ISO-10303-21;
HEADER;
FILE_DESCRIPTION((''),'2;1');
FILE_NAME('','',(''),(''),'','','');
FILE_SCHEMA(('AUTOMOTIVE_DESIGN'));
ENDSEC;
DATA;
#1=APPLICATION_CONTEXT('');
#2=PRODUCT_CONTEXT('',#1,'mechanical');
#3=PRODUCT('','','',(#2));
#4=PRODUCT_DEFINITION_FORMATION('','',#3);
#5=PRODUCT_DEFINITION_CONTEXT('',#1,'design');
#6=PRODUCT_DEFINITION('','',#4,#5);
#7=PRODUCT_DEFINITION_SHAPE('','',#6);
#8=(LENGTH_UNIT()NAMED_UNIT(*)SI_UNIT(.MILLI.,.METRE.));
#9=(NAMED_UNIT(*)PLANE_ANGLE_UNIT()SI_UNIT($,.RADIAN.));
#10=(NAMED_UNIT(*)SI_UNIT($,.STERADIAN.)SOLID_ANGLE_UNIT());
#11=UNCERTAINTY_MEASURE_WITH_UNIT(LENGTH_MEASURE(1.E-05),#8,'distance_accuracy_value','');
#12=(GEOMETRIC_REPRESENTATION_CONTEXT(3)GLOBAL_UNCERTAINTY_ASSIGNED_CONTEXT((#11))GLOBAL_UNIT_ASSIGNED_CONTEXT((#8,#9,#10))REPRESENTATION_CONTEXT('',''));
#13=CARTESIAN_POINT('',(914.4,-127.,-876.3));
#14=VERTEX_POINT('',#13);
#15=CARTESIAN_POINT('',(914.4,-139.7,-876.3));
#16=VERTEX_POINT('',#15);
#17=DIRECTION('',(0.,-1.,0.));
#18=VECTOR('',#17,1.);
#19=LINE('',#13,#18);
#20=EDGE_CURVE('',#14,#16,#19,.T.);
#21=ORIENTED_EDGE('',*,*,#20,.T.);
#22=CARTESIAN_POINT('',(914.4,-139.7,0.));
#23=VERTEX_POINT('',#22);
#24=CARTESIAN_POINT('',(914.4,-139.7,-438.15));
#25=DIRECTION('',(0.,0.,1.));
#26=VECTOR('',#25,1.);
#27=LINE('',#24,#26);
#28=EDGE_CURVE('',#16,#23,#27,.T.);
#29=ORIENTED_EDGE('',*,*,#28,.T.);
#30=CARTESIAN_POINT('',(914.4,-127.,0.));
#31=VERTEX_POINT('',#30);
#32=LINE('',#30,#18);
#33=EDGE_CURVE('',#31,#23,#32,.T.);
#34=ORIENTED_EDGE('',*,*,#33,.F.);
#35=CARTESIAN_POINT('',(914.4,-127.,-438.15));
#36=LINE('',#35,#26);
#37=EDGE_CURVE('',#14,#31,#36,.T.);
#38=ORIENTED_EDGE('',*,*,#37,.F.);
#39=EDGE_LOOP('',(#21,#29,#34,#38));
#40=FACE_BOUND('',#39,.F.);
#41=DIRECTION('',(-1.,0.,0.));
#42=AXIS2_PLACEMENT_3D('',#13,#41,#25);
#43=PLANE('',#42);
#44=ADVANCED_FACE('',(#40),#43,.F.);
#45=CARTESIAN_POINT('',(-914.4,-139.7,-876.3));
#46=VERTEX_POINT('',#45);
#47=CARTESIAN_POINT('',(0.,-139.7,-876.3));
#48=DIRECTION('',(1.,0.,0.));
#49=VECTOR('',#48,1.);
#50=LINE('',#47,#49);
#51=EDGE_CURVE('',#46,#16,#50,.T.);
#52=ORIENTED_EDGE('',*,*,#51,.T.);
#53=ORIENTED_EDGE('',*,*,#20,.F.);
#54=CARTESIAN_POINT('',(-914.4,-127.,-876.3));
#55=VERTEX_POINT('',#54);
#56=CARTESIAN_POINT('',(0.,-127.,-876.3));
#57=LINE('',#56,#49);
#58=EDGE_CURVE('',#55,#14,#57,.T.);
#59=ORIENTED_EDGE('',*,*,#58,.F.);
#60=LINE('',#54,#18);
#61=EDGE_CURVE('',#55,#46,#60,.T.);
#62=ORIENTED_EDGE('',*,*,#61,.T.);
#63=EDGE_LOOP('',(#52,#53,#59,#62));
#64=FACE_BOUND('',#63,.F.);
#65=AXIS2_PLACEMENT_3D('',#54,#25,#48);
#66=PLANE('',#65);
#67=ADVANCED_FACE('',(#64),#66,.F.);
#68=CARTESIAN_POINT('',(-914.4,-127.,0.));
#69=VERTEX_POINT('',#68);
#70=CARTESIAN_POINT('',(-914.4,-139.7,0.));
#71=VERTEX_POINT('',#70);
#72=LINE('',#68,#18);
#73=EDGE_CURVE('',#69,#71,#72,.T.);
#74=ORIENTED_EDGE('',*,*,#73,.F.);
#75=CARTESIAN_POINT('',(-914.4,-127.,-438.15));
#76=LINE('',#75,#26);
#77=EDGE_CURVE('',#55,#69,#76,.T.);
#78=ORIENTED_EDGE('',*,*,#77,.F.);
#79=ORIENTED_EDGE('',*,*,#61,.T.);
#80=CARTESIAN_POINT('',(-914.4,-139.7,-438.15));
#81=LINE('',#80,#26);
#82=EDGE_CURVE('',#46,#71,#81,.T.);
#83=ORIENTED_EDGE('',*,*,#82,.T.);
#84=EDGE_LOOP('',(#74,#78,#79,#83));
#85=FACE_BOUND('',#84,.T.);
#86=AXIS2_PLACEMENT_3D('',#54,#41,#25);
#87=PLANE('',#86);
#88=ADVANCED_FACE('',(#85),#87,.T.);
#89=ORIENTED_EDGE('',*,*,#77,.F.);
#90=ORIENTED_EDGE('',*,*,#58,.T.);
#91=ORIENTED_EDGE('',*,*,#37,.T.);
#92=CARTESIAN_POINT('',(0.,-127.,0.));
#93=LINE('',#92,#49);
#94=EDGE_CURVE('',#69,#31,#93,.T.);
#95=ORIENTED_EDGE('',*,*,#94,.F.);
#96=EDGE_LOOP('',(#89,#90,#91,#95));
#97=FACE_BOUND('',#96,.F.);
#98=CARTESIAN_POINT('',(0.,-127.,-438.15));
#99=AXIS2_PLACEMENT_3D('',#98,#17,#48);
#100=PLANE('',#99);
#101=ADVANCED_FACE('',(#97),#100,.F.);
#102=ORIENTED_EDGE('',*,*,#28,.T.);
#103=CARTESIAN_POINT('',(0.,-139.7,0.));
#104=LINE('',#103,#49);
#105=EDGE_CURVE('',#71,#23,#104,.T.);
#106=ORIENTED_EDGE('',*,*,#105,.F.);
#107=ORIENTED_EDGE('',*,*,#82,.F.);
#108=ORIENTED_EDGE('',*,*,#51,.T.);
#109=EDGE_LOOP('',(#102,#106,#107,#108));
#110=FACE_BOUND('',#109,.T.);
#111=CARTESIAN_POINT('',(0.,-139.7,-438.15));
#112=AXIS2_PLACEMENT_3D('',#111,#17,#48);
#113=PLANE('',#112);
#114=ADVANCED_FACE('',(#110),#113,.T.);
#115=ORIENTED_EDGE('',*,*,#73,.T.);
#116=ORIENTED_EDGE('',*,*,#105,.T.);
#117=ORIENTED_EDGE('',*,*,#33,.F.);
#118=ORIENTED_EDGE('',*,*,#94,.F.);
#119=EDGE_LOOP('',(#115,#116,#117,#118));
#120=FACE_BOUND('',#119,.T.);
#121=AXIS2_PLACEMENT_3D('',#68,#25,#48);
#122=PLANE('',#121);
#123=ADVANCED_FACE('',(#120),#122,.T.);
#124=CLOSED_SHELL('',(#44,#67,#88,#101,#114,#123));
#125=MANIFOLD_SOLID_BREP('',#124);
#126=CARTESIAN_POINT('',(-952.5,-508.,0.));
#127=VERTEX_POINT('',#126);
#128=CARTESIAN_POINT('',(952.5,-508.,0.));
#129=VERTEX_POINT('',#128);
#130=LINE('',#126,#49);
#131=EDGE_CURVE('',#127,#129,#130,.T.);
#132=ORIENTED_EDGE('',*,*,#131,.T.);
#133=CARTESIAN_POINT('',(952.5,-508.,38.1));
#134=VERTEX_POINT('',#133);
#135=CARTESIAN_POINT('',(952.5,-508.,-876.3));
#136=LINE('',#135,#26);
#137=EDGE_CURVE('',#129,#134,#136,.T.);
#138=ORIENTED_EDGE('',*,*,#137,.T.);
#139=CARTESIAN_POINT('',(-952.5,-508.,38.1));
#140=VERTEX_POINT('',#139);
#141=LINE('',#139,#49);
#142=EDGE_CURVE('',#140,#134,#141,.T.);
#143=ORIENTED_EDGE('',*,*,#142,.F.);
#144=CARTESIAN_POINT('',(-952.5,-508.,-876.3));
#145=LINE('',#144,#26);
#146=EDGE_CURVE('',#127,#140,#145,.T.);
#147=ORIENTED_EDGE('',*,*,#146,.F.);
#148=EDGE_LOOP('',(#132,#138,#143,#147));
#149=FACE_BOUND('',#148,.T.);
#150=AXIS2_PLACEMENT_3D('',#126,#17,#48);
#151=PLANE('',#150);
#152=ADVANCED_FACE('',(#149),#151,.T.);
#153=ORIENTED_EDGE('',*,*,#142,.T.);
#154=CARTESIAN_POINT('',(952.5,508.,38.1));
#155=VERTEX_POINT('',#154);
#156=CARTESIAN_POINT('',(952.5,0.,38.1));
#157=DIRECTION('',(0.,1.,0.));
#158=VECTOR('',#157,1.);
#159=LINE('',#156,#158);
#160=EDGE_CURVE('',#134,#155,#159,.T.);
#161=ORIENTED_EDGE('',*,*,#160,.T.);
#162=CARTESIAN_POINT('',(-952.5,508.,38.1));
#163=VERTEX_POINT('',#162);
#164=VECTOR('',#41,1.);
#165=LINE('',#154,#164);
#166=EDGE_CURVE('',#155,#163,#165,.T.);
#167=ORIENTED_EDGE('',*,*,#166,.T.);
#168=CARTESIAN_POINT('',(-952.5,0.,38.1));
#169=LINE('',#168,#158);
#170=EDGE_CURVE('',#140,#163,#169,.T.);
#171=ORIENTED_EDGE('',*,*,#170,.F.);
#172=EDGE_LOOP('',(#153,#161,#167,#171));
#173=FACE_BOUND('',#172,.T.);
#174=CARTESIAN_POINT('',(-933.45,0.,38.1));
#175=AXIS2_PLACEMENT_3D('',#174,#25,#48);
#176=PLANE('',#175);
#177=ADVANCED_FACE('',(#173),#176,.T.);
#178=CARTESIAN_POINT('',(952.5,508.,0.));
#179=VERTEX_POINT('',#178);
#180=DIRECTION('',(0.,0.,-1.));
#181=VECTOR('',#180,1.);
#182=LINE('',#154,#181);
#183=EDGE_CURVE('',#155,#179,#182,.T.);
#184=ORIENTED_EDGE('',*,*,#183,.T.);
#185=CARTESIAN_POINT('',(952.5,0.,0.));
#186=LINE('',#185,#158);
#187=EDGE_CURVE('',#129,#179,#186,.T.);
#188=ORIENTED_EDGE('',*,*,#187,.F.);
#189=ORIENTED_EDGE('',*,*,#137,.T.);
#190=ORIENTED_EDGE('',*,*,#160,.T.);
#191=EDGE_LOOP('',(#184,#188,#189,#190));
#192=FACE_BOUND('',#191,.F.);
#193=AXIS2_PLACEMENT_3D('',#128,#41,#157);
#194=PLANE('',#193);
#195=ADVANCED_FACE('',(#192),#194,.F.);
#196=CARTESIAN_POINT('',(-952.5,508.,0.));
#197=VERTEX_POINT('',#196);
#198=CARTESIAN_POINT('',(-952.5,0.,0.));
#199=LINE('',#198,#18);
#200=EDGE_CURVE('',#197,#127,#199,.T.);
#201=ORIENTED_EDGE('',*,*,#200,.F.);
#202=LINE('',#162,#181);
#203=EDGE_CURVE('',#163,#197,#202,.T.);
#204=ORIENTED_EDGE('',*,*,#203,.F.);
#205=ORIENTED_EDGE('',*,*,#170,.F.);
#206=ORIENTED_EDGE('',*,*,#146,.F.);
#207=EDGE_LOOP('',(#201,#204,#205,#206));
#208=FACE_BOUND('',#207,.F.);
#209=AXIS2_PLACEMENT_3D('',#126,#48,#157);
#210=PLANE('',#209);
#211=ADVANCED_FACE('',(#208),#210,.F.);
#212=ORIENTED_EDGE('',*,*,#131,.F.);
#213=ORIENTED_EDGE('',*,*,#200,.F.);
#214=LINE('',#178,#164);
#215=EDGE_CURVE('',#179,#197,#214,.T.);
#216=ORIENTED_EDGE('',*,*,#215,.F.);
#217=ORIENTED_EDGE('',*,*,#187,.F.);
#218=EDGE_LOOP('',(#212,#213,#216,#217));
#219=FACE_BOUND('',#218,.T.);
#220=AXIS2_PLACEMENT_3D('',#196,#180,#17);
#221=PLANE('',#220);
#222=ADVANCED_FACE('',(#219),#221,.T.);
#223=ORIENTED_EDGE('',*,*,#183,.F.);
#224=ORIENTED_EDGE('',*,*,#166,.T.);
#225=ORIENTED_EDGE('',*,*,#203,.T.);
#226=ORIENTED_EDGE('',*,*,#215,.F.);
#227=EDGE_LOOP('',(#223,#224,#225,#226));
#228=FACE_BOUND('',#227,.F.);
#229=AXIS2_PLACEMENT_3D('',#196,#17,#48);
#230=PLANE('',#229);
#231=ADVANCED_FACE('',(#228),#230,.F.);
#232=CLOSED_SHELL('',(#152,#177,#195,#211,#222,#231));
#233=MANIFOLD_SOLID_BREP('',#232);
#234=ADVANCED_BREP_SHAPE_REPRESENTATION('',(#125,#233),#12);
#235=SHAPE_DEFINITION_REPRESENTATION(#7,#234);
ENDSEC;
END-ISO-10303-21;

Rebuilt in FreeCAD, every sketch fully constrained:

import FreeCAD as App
import Part
import Sketcher
from FreeCAD import Vector
Q = App.Units.Quantity


def add_polygon(sketch, points):
    """Adds a closed chain of lines whose ends are joined by coincident constraints."""
    first, n = sketch.GeometryCount, len(points)
    for a, b in zip(points, points[1:] + points[:1]):
        sketch.addGeometry(Part.LineSegment(App.Vector(*a, 0), App.Vector(*b, 0)), False)
    for i in range(n):
        sketch.addConstraint(Sketcher.Constraint("Coincident", first + i, 2, first + (i + 1) % n, 1))

doc = App.newDocument("Part")
body = doc.addObject("PartDesign::Body", "Body")

# Sketch on XY plane
sketch1 = body.newObject("Sketcher::SketchObject", "Sketch")
sketch1.AttachmentSupport = (doc.getObject("XY_Plane"), [""])
sketch1.MapMode = "FlatFace"
add_polygon(sketch1, [(-952, 508), (-952, -508), (952, -508), (952, 508)])  # lines 0-3
sketch1.addConstraint([
    Sketcher.Constraint("Vertical", 0),
    Sketcher.Constraint("Horizontal", 1),
    Sketcher.Constraint("Vertical", 2),
    Sketcher.Constraint("Horizontal", 3),
    Sketcher.Constraint("Symmetric", 0, 2, 2, 2, -1, 1),
    Sketcher.Constraint("DistanceX", 1, 1, 1, 2, Q("75 in")),
    Sketcher.Constraint("DistanceY", 0, 2, 0, 1, Q("40 in")),
])
pad1 = body.newObject("PartDesign::Pad", "Pad")
pad1.Profile = sketch1
pad1.Length = Q("1.5 in")

# Sketch on XY plane
sketch2 = body.newObject("Sketcher::SketchObject", "Sketch001")
sketch2.AttachmentSupport = (doc.getObject("XY_Plane"), [""])
sketch2.MapMode = "FlatFace"
add_polygon(sketch2, [(-952, 508), (-952, -508), (-914, -508), (-914, 508)])  # lines 0-3
add_polygon(sketch2, [(914, 508), (914, -508), (952, -508), (952, 508)])  # lines 4-7
sketch2.addConstraint([
    Sketcher.Constraint("Vertical", 0),
    Sketcher.Constraint("Horizontal", 1),
    Sketcher.Constraint("Vertical", 2),
    Sketcher.Constraint("Horizontal", 3),
    Sketcher.Constraint("Vertical", 4),
    Sketcher.Constraint("Horizontal", 5),
    Sketcher.Constraint("Vertical", 6),
    Sketcher.Constraint("Horizontal", 7),
    Sketcher.Constraint("Symmetric", 2, 2, 4, 2, -1, 1),
    Sketcher.Constraint("Symmetric", 0, 2, 6, 2, -1, 1),
    Sketcher.Constraint("Horizontal", 1, 2, 4, 2),
    Sketcher.Constraint("DistanceY", 0, 2, 0, 1, Q("40 in")),
    Sketcher.Constraint("DistanceX", 1, 1, 1, 2, Q("1.5 in")),
    Sketcher.Constraint("DistanceX", 1, 2, -1, 1, Q("36 in")),
])
pad2 = body.newObject("PartDesign::Pad", "Pad001")
pad2.Profile = sketch2
pad2.Length = Q("34.5 in")
pad2.Reversed = True

# Sketch on YZ plane
sketch3 = body.newObject("Sketcher::SketchObject", "Sketch002")
sketch3.AttachmentSupport = (doc.getObject("YZ_Plane"), [""])
sketch3.MapMode = "FlatFace"
sketch3.AttachmentOffset = App.Placement(Vector(0, 0, 37.5 * 25.4), App.Rotation())
add_polygon(sketch3, [(-508, 0), (-508, -876), (508, -876), (508, 0)])  # lines 0-3
sketch3.addConstraint([
    Sketcher.Constraint("Vertical", 0),
    Sketcher.Constraint("Horizontal", 1),
    Sketcher.Constraint("Vertical", 2),
    Sketcher.Constraint("Horizontal", 3),
    Sketcher.Constraint("Symmetric", 2, 2, 3, 2, -1, 1),
    Sketcher.Constraint("DistanceX", 1, 1, 1, 2, Q("40 in")),
    Sketcher.Constraint("DistanceY", 0, 2, 0, 1, Q("34.5 in")),
])
pocket1 = body.newObject("PartDesign::Pocket", "Pocket")
pocket1.Profile = sketch3
pocket1.Length = Q("1.5 in")

# Sketch on YZ plane
sketch4 = body.newObject("Sketcher::SketchObject", "Sketch003")
sketch4.AttachmentSupport = (doc.getObject("YZ_Plane"), [""])
sketch4.MapMode = "FlatFace"
sketch4.AttachmentOffset = App.Placement(Vector(0, 0, -37.5 * 25.4), App.Rotation())
add_polygon(sketch4, [(508, 0), (508, -876), (-508, -876), (-508, 0)])  # lines 0-3
sketch4.addConstraint([
    Sketcher.Constraint("Vertical", 0),
    Sketcher.Constraint("Horizontal", 1),
    Sketcher.Constraint("Vertical", 2),
    Sketcher.Constraint("Horizontal", 3),
    Sketcher.Constraint("Symmetric", 2, 2, 3, 2, -1, 1),
    Sketcher.Constraint("DistanceX", 1, 2, 1, 1, Q("40 in")),
    Sketcher.Constraint("DistanceY", 0, 2, 0, 1, Q("34.5 in")),
])
pocket2 = body.newObject("PartDesign::Pocket", "Pocket001")
pocket2.Profile = sketch4
pocket2.Length = Q("1.5 in")
pocket2.Reversed = True
body2 = doc.addObject("PartDesign::Body", "Body001")

# Sketch on XZ plane
sketch5 = body2.newObject("Sketcher::SketchObject", "Sketch004")
sketch5.AttachmentSupport = (doc.getObject("XZ_Plane001"), [""])
sketch5.MapMode = "FlatFace"
sketch5.AttachmentOffset = App.Placement(Vector(0, 0, 5 * 25.4), App.Rotation())
add_polygon(sketch5, [(-914, 0), (-914, -876), (914, -876), (914, 0)])  # lines 0-3
sketch5.addConstraint([
    Sketcher.Constraint("Vertical", 0),
    Sketcher.Constraint("Horizontal", 1),
    Sketcher.Constraint("Vertical", 2),
    Sketcher.Constraint("Horizontal", 3),
    Sketcher.Constraint("Symmetric", 2, 2, 3, 2, -1, 1),
    Sketcher.Constraint("DistanceX", 1, 1, 1, 2, Q("72 in")),
    Sketcher.Constraint("DistanceY", 0, 2, 0, 1, Q("34.5 in")),
])
pad3 = body2.newObject("PartDesign::Pad", "Pad002")
pad3.Profile = sketch5
pad3.Length = Q("0.5 in")

doc.recompute()
